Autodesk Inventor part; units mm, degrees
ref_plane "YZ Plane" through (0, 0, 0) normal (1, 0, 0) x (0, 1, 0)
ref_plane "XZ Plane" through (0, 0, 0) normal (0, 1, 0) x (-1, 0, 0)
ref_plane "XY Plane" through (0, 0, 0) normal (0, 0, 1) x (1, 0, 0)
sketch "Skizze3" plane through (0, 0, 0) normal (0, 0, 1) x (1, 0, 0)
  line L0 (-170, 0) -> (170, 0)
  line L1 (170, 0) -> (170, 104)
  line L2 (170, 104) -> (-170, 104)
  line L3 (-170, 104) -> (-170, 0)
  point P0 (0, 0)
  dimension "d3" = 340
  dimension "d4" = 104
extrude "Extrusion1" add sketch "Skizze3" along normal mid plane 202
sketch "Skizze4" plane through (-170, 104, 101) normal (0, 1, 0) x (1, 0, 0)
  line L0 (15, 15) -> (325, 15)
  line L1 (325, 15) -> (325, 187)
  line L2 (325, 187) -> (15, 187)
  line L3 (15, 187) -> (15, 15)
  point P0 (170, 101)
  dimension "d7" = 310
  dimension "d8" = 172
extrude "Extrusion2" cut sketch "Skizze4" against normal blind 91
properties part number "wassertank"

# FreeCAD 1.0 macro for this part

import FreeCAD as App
import Part
import Sketcher
from FreeCAD import Vector

doc = App.newDocument("Part")
body = doc.addObject("PartDesign::Body", "Body")

# Sketch on XY plane
sketch1 = doc.addObject("Sketcher::SketchObject", "Sketch")
body.addObject(sketch1)
sketch1.AttachmentSupport = (doc.XY_Plane, [""])
sketch1.MapMode = "FlatFace"
sketch1.addGeometry(Part.LineSegment(Vector(-170, 104, 0), Vector(-170, 0, 0)), False)
sketch1.addGeometry(Part.LineSegment(Vector(-170, 0, 0), Vector(170, 0, 0)), False)
sketch1.addGeometry(Part.LineSegment(Vector(170, 0, 0), Vector(170, 104, 0)), False)
sketch1.addGeometry(Part.LineSegment(Vector(170, 104, 0), Vector(-170, 104, 0)), False)
sketch1.addConstraint(Sketcher.Constraint("Coincident", 0, 2, 1, 1))
sketch1.addConstraint(Sketcher.Constraint("Coincident", 1, 2, 2, 1))
sketch1.addConstraint(Sketcher.Constraint("Coincident", 2, 2, 3, 1))
sketch1.addConstraint(Sketcher.Constraint("Coincident", 3, 2, 0, 1))
sketch1.addConstraint(Sketcher.Constraint("Vertical", 0))
sketch1.addConstraint(Sketcher.Constraint("Horizontal", 1))
sketch1.addConstraint(Sketcher.Constraint("Vertical", 2))
sketch1.addConstraint(Sketcher.Constraint("Horizontal", 3))
sketch1.addConstraint(Sketcher.Constraint("Symmetric", 0, 2, 1, 2, -1, 1))
sketch1.addConstraint(Sketcher.Constraint("DistanceX", 1, 1, 1, 2, 340.0))
sketch1.addConstraint(Sketcher.Constraint("DistanceY", 0, 2, 0, 1, 104.0))
pad1 = doc.addObject("PartDesign::Pad", "Pad")
body.addObject(pad1)
pad1.Profile = sketch1
pad1.Length = 202
pad1.Midplane = True

# Sketch on XZ plane
sketch2 = doc.addObject("Sketcher::SketchObject", "Sketch001")
body.addObject(sketch2)
sketch2.AttachmentSupport = (doc.XZ_Plane, [""])
sketch2.MapMode = "FlatFace"
sketch2.AttachmentOffset = App.Placement(Vector(0, 0, -104), App.Rotation())
sketch2.addGeometry(Part.LineSegment(Vector(-155, -86, 0), Vector(-155, 86, 0)), False)
sketch2.addGeometry(Part.LineSegment(Vector(-155, 86, 0), Vector(155, 86, 0)), False)
sketch2.addGeometry(Part.LineSegment(Vector(155, 86, 0), Vector(155, -86, 0)), False)
sketch2.addGeometry(Part.LineSegment(Vector(155, -86, 0), Vector(-155, -86, 0)), False)
sketch2.addConstraint(Sketcher.Constraint("Coincident", 0, 2, 1, 1))
sketch2.addConstraint(Sketcher.Constraint("Coincident", 1, 2, 2, 1))
sketch2.addConstraint(Sketcher.Constraint("Coincident", 2, 2, 3, 1))
sketch2.addConstraint(Sketcher.Constraint("Coincident", 3, 2, 0, 1))
sketch2.addConstraint(Sketcher.Constraint("Vertical", 0))
sketch2.addConstraint(Sketcher.Constraint("Horizontal", 1))
sketch2.addConstraint(Sketcher.Constraint("Vertical", 2))
sketch2.addConstraint(Sketcher.Constraint("Horizontal", 3))
sketch2.addConstraint(Sketcher.Constraint("Symmetric", 0, 2, 2, 2, -1, 1))
sketch2.addConstraint(Sketcher.Constraint("DistanceX", 1, 1, 1, 2, 310.0))
sketch2.addConstraint(Sketcher.Constraint("DistanceY", 0, 1, 0, 2, 172.0))
pocket1 = doc.addObject("PartDesign::Pocket", "Pocket")
body.addObject(pocket1)
pocket1.Profile = sketch2
pocket1.Length = 91
pocket1.Reversed = True

doc.recompute()
